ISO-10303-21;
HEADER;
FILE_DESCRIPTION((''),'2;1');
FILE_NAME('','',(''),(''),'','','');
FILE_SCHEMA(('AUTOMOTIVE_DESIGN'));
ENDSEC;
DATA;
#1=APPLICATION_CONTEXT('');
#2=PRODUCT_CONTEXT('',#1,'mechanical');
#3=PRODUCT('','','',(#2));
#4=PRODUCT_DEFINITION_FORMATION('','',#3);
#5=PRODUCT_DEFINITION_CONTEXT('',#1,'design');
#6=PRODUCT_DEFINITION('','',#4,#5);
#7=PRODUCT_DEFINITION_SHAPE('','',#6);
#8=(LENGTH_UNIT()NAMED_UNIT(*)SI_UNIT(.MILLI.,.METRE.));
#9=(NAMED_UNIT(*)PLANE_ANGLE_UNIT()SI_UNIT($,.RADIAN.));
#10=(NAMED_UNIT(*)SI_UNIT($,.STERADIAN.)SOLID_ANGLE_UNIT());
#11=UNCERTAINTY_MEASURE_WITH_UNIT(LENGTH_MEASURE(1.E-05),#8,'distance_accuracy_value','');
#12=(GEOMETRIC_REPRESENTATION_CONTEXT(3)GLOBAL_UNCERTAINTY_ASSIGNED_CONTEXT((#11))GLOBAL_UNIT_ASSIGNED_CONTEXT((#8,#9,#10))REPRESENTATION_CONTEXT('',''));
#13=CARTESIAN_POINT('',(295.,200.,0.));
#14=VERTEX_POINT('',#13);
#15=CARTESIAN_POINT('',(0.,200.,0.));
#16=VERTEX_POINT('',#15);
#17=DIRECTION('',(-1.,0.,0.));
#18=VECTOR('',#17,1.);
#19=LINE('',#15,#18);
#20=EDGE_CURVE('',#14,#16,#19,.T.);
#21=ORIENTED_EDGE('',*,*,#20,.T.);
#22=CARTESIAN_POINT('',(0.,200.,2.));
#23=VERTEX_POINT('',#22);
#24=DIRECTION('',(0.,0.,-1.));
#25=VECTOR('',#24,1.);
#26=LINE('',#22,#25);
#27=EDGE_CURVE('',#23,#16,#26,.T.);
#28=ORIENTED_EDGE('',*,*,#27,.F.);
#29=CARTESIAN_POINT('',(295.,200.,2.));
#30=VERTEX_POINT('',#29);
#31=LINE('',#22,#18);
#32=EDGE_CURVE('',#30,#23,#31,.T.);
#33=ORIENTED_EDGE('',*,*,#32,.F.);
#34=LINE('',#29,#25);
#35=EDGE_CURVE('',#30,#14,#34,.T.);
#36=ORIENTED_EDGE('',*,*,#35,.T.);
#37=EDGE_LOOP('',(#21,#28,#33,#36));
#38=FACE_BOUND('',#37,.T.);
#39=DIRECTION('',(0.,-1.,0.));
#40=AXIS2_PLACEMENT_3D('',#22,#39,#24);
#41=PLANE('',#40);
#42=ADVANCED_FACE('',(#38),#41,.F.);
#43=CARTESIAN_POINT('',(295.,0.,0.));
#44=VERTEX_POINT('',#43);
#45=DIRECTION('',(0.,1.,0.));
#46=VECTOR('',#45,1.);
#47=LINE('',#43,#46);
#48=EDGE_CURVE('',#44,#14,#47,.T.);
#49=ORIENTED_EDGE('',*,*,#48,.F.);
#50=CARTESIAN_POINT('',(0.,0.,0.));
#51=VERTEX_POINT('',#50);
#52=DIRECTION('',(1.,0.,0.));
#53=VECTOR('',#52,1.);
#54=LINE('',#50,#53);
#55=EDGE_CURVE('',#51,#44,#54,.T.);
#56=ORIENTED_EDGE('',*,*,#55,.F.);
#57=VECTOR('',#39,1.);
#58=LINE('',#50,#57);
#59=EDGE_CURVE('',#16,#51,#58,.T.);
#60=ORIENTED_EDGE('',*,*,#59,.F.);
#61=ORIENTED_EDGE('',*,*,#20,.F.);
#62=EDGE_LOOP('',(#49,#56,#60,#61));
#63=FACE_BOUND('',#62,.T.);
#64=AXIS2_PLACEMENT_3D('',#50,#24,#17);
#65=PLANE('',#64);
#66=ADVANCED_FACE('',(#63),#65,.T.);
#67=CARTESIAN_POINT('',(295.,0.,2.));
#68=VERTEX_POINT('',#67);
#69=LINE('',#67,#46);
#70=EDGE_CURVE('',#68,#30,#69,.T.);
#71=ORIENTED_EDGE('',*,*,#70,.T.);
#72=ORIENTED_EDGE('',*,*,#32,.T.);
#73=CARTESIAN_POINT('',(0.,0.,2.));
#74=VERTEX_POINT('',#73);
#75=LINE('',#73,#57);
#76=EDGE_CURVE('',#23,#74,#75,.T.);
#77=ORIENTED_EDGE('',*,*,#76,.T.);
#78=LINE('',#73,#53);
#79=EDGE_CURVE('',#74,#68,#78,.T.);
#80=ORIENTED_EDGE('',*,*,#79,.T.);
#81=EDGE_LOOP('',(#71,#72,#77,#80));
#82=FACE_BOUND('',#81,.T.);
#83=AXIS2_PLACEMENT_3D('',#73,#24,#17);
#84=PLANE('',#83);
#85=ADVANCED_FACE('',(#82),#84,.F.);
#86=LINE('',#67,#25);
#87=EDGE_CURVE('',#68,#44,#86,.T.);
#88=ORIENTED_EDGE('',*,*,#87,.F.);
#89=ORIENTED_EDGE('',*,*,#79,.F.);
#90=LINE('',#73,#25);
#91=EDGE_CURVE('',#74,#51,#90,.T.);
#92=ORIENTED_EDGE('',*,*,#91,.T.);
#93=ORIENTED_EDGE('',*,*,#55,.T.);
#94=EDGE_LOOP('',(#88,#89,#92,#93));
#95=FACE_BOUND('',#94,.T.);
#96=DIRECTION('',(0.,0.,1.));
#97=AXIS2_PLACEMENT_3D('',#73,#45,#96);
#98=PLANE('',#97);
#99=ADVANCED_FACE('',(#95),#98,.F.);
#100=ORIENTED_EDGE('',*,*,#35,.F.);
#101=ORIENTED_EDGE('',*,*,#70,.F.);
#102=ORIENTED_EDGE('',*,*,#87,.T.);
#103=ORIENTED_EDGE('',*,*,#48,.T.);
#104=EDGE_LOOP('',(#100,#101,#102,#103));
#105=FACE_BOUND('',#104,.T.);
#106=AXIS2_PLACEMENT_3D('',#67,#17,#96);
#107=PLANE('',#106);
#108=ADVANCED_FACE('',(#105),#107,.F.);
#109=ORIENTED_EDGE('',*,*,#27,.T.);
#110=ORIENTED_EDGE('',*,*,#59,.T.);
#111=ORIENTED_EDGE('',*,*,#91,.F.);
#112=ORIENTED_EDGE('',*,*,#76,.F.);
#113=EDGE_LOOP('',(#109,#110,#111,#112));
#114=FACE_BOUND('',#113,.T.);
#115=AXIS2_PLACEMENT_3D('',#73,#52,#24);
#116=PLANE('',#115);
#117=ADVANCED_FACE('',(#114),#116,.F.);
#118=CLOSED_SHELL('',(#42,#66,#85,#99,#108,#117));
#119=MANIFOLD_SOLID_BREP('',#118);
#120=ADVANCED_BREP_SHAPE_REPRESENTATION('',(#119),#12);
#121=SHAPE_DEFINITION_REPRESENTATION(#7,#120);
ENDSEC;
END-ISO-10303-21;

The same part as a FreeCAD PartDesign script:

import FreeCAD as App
import Part
import Sketcher

V = App.Vector
Q = App.Units.Quantity


def add_polygon(sketch, points):
    """Adds a closed chain of lines whose ends are joined by coincident constraints."""
    first, n = sketch.GeometryCount, len(points)
    for a, b in zip(points, points[1:] + points[:1]):
        sketch.addGeometry(Part.LineSegment(App.Vector(*a, 0), App.Vector(*b, 0)), False)
    for i in range(n):
        sketch.addConstraint(Sketcher.Constraint("Coincident", first + i, 2, first + (i + 1) % n, 1))

doc = App.newDocument("Part")
body = doc.addObject("PartDesign::Body", "Body")

sketch1 = body.newObject("Sketcher::SketchObject", "Sketch")
sketch1.AttachmentSupport = (doc.getObject("XY_Plane"), [""])
sketch1.MapMode = "FlatFace"
add_polygon(sketch1, [(0, 200), (0, 0), (295, 0), (295, 200)])
sketch1.addConstraint(Sketcher.Constraint("Vertical", 0))
sketch1.addConstraint(Sketcher.Constraint("Horizontal", 1))
sketch1.addConstraint(Sketcher.Constraint("Vertical", 2))
sketch1.addConstraint(Sketcher.Constraint("Horizontal", 3))
sketch1.addConstraint(Sketcher.Constraint("Coincident", 0, 2, -1, 1))
sketch1.addConstraint(Sketcher.Constraint("DistanceX", 1, 1, 1, 2, Q("295 mm")))
sketch1.addConstraint(Sketcher.Constraint("DistanceY", 0, 2, 0, 1, Q("200 mm")))
pad1 = body.newObject("PartDesign::Pad", "Pad")
pad1.Profile = sketch1
pad1.Length = 2

doc.recompute()
